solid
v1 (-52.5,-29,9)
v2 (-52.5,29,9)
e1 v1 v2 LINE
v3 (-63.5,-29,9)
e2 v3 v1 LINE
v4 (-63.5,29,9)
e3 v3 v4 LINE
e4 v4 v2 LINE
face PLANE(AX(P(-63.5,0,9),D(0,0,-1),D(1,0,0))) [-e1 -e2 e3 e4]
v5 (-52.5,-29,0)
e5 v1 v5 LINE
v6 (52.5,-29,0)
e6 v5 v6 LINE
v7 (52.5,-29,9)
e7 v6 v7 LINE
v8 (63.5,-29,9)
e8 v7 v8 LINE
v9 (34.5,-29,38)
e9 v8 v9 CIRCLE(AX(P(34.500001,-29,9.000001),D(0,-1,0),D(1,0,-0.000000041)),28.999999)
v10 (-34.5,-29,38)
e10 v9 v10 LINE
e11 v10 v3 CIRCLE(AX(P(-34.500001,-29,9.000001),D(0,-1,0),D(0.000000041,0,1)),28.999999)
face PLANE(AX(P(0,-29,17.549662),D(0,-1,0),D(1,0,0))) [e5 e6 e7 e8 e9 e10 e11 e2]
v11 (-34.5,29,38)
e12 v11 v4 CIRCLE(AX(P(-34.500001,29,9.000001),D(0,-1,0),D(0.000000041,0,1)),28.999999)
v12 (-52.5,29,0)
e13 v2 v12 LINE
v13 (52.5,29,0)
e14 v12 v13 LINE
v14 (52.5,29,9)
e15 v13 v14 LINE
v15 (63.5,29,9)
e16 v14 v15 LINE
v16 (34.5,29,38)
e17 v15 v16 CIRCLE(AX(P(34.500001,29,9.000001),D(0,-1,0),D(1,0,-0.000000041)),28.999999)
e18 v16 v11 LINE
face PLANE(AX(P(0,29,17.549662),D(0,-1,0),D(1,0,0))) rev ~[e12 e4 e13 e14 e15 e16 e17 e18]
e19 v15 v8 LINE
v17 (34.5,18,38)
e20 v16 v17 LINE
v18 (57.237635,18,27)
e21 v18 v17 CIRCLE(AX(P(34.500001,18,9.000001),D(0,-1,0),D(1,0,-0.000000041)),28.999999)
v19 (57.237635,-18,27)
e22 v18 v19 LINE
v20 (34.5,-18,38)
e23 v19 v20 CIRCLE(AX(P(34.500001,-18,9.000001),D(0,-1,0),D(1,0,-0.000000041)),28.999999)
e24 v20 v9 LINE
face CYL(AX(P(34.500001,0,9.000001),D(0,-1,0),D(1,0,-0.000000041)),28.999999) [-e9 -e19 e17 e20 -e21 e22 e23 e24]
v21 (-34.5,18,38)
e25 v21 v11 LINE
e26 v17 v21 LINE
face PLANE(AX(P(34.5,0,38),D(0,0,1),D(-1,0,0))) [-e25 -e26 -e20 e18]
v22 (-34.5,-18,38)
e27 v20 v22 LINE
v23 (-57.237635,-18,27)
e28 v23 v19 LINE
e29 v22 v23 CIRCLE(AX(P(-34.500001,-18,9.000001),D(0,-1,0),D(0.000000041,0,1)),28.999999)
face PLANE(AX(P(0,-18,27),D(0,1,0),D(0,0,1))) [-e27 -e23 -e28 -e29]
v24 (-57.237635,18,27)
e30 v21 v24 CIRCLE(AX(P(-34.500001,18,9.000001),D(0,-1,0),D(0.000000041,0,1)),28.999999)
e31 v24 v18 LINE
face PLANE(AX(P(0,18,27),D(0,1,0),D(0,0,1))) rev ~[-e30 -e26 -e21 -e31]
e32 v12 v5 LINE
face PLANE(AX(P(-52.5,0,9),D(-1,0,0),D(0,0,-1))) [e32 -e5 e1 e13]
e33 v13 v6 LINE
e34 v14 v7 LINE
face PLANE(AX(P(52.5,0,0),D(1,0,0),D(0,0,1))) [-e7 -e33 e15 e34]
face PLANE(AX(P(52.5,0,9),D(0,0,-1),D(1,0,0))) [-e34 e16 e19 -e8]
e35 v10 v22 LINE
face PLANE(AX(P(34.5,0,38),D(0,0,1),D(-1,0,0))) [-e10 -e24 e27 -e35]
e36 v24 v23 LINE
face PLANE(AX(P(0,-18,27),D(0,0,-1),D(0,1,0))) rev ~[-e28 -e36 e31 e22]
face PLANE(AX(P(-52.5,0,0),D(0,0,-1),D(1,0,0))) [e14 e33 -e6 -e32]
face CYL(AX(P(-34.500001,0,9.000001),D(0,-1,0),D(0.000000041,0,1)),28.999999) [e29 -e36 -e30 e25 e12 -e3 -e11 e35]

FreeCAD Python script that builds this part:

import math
import FreeCAD as App
import Part
import Sketcher

doc = App.newDocument("Part")
body = doc.addObject("PartDesign::Body", "Body")

sketch1 = body.newObject("Sketcher::SketchObject", "Sketch")
sketch1.AttachmentSupport = (doc.getObject("XZ_Plane"), [""])
sketch1.MapMode = "FlatFace"
sketch1.addGeometry([
    Part.LineSegment(App.Vector(-52.5, 9, 0), App.Vector(-52.5, 0, 0)),
    Part.LineSegment(App.Vector(-52.5, 0, 0), App.Vector(52.5, 0, 0)),
    Part.LineSegment(App.Vector(52.5, 0, 0), App.Vector(52.5, 9, 0)),
    Part.LineSegment(App.Vector(52.5, 9, 0), App.Vector(63.5, 9, 0)),
    Part.ArcOfCircle(Part.Circle(App.Vector(34.500001, 9.000001, 0), App.Vector(0, 0, 1), 28.999999), math.radians(-0.000002), math.radians(90.000002)),
    Part.LineSegment(App.Vector(34.5, 38, 0), App.Vector(-34.5, 38, 0)),
    Part.ArcOfCircle(Part.Circle(App.Vector(-34.500001, 9.000001, 0), App.Vector(0, 0, 1), 28.999999), math.radians(89.999998), math.radians(180.000002)),
    Part.LineSegment(App.Vector(-63.5, 9, 0), App.Vector(-52.5, 9, 0)),
], False)
sketch1.addConstraint([
    Sketcher.Constraint("Coincident", 0, 2, 1, 1),
    Sketcher.Constraint("Coincident", 1, 2, 2, 1),
    Sketcher.Constraint("Coincident", 2, 2, 3, 1),
    Sketcher.Constraint("Coincident", 3, 2, 4, 1),
    Sketcher.Constraint("Tangent", 4, 2, 5, 1),
    Sketcher.Constraint("Tangent", 5, 2, 6, 1),
    Sketcher.Constraint("Coincident", 6, 2, 7, 1),
    Sketcher.Constraint("Coincident", 7, 2, 0, 1),
    Sketcher.Constraint("Vertical", 0),
    Sketcher.Constraint("Horizontal", 1),
    Sketcher.Constraint("Vertical", 2),
    Sketcher.Constraint("Horizontal", 3),
    Sketcher.Constraint("Horizontal", 5),
    Sketcher.Constraint("Horizontal", 7),
    Sketcher.Constraint("Equal", 4, 6),
    Sketcher.Constraint("Symmetric", 0, 2, 1, 2, -1, 1),
    Sketcher.Constraint("Symmetric", 3, 2, 6, 2, -2),
    Sketcher.Constraint("Horizontal", 6, 3, 2, 2),
    Sketcher.Constraint("Radius", 4, 28.999999),
    Sketcher.Constraint("DistanceX", 1, 1, 1, 2, 105.0),
    Sketcher.Constraint("DistanceX", 3, 1, 3, 2, 11.0),
    Sketcher.Constraint("DistanceY", 0, 2, 0, 1, 9.0),
])
pad1 = body.newObject("PartDesign::Pad", "Pad")
pad1.Profile = sketch1
pad1.Length = 58
pad1.Midplane = True

sketch2 = body.newObject("Sketcher::SketchObject", "Sketch001")
sketch2.AttachmentSupport = (doc.getObject("YZ_Plane"), [""])
sketch2.MapMode = "FlatFace"
sketch2.addGeometry([
    Part.LineSegment(App.Vector(-18, 38, 0), App.Vector(-18, 27, 0)),
    Part.LineSegment(App.Vector(-18, 27, 0), App.Vector(18, 27, 0)),
    Part.LineSegment(App.Vector(18, 27, 0), App.Vector(18, 38, 0)),
    Part.LineSegment(App.Vector(18, 38, 0), App.Vector(-18, 38, 0)),
], False)
sketch2.addConstraint([
    Sketcher.Constraint("Coincident", 0, 2, 1, 1),
    Sketcher.Constraint("Coincident", 1, 2, 2, 1),
    Sketcher.Constraint("Coincident", 2, 2, 3, 1),
    Sketcher.Constraint("Coincident", 3, 2, 0, 1),
    Sketcher.Constraint("Vertical", 0),
    Sketcher.Constraint("Horizontal", 1),
    Sketcher.Constraint("Vertical", 2),
    Sketcher.Constraint("Horizontal", 3),
    Sketcher.Constraint("DistanceX", 1, 1, 1, 2, 36.0),
    Sketcher.Constraint("DistanceY", 0, 2, 0, 1, 11.0),
    Sketcher.Constraint("DistanceX", 0, 2, -1, 1, 18.0),
    Sketcher.Constraint("DistanceY", -1, 1, 0, 2, 27.0),
])
pocket1 = body.newObject("PartDesign::Pocket", "Pocket")
pocket1.Profile = sketch2
pocket1.Length = 127
pocket1.Midplane = True

doc.recompute()
